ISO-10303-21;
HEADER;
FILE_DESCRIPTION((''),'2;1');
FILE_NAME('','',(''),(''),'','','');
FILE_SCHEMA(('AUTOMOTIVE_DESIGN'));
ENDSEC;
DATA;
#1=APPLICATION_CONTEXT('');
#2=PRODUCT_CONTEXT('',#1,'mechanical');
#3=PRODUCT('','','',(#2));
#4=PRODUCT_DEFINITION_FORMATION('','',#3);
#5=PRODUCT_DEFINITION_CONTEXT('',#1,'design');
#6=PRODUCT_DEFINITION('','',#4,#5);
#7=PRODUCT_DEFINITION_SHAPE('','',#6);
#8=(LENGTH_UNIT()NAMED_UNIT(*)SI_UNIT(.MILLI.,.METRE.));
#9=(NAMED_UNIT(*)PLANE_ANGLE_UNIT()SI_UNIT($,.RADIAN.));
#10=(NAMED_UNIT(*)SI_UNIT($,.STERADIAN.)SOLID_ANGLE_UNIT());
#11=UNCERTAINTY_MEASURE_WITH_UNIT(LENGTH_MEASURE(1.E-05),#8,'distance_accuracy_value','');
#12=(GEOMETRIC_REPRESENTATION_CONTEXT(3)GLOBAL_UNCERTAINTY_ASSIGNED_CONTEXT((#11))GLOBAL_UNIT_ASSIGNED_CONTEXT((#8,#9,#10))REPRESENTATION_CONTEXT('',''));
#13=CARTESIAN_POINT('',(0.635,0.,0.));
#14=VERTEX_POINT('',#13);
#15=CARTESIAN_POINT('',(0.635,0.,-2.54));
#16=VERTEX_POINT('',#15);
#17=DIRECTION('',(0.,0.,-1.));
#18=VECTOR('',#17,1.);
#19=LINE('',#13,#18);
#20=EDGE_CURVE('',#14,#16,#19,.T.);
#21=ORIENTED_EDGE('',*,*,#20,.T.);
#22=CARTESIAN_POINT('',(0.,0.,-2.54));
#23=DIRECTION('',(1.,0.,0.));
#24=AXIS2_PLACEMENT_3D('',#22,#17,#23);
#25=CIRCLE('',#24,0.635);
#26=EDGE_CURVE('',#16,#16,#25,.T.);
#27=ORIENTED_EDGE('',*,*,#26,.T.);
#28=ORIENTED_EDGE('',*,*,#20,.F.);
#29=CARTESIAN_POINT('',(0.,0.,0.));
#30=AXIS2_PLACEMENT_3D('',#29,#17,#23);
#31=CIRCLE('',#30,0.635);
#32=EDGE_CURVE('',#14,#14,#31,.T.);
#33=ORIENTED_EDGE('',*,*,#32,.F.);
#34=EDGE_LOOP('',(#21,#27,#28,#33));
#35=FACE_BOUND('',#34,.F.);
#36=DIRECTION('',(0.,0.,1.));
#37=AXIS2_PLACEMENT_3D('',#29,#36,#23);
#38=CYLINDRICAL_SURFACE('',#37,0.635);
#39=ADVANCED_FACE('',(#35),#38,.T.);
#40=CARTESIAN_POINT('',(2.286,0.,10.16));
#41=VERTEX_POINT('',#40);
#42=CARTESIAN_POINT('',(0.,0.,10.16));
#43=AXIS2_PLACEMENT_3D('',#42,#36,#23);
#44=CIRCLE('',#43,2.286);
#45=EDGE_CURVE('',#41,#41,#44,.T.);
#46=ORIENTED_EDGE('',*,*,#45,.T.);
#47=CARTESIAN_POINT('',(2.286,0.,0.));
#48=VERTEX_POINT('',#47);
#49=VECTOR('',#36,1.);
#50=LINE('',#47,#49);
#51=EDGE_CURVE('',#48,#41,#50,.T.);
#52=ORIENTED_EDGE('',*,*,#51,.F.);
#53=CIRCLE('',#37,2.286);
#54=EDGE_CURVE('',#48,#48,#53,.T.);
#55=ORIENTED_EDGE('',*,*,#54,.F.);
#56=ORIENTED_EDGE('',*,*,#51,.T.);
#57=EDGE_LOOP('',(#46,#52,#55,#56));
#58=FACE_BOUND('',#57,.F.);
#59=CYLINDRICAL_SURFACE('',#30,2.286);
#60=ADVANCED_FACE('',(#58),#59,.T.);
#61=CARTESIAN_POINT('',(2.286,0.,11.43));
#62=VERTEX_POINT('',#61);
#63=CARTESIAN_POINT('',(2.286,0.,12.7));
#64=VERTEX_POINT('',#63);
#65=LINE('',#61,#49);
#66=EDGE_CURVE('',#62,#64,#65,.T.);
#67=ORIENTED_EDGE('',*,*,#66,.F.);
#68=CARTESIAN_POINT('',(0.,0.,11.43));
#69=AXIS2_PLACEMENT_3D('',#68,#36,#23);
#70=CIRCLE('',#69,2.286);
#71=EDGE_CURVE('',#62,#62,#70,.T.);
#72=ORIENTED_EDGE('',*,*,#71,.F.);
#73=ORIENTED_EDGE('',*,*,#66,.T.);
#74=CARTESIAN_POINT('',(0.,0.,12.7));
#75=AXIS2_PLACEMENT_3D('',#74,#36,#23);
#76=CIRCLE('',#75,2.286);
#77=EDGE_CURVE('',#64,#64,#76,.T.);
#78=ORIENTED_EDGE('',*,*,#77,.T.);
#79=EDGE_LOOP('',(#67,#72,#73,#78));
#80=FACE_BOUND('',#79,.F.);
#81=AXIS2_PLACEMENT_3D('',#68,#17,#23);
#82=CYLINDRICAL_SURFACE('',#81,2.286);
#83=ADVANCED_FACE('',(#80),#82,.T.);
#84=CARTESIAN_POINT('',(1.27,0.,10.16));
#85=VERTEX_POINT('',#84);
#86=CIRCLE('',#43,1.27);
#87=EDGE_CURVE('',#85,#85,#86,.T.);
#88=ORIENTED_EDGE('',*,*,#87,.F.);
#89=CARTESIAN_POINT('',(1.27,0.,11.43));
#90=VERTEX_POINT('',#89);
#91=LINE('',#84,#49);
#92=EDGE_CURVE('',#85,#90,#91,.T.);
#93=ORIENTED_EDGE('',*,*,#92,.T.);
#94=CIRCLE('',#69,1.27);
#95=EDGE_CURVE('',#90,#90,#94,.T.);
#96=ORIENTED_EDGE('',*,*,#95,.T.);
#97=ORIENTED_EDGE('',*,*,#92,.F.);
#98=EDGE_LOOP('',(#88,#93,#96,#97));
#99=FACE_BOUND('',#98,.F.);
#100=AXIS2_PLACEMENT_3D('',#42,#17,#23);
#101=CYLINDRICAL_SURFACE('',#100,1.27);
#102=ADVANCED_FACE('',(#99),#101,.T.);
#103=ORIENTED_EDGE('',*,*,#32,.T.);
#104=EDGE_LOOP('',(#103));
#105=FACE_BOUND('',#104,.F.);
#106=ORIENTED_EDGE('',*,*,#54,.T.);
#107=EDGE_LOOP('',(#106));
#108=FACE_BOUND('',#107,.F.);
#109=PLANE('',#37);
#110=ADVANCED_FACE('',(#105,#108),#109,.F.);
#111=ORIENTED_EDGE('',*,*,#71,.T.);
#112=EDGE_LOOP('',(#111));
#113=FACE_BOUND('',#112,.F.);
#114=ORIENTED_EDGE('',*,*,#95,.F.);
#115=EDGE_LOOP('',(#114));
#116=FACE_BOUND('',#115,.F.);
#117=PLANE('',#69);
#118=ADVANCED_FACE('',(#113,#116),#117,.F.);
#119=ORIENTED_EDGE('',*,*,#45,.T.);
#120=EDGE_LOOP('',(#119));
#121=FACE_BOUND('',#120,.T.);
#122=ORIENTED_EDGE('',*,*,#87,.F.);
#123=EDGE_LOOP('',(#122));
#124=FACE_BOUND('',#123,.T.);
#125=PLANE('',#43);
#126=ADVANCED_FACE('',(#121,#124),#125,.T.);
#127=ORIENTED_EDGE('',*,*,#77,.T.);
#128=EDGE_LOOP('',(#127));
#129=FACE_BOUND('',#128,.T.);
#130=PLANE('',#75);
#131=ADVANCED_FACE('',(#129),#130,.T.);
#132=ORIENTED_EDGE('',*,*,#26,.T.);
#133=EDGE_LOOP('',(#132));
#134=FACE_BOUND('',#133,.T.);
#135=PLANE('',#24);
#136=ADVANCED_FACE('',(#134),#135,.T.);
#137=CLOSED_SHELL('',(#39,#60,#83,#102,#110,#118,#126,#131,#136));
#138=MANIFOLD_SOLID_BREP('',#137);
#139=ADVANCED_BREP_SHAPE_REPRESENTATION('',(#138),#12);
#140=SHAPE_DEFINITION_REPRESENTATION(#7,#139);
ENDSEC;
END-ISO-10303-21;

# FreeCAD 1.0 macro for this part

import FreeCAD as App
import Part
import Sketcher
from FreeCAD import Vector
Q = App.Units.Quantity

doc = App.newDocument("Part")
body = doc.addObject("PartDesign::Body", "Body")

# Sketch on XY plane
sketch1 = body.newObject("Sketcher::SketchObject", "Sketch")
sketch1.AttachmentSupport = (doc.getObject("XY_Plane"), [""])
sketch1.MapMode = "FlatFace"
sketch1.addGeometry(Part.Circle(Vector(0, 0, 0), Vector(0, 0, 1), 2.3), False)
sketch1.addConstraint([
    Sketcher.Constraint("Coincident", 0, 3, -1, 1),
    Sketcher.Constraint("Diameter", 0, Q("0.18 in")),
])
pad1 = body.newObject("PartDesign::Pad", "Pad")
pad1.Profile = sketch1
pad1.Length = Q("0.4 in")

# Sketch on XY plane
sketch2 = body.newObject("Sketcher::SketchObject", "Sketch001")
sketch2.AttachmentSupport = (doc.getObject("XY_Plane"), [""])
sketch2.MapMode = "FlatFace"
sketch2.AttachmentOffset = App.Placement(Vector(0, 0, 0.4 * 25.4), App.Rotation())
sketch2.addGeometry(Part.Circle(Vector(0, 0, 0), Vector(0, 0, 1), 1.3), False)
sketch2.addConstraint([
    Sketcher.Constraint("Coincident", 0, 3, -1, 1),
    Sketcher.Constraint("Diameter", 0, Q("0.1 in")),
])
pad2 = body.newObject("PartDesign::Pad", "Pad001")
pad2.Profile = sketch2
pad2.Length = Q("0.05 in")

# Sketch on XY plane
sketch3 = body.newObject("Sketcher::SketchObject", "Sketch002")
sketch3.AttachmentSupport = (doc.getObject("XY_Plane"), [""])
sketch3.MapMode = "FlatFace"
sketch3.AttachmentOffset = App.Placement(Vector(0, 0, 0.45 * 25.4), App.Rotation())
sketch3.addGeometry(Part.Circle(Vector(0, 0, 0), Vector(0, 0, 1), 2.3), False)
sketch3.addConstraint([
    Sketcher.Constraint("Coincident", 0, 3, -1, 1),
    Sketcher.Constraint("Diameter", 0, Q("0.18 in")),
])
pad3 = body.newObject("PartDesign::Pad", "Pad002")
pad3.Profile = sketch3
pad3.Length = Q("0.05 in")

# Sketch on XY plane
sketch4 = body.newObject("Sketcher::SketchObject", "Sketch003")
sketch4.AttachmentSupport = (doc.getObject("XY_Plane"), [""])
sketch4.MapMode = "FlatFace"
sketch4.addGeometry(Part.Circle(Vector(0, 0, 0), Vector(0, 0, 1), 0.6), False)
sketch4.addConstraint([
    Sketcher.Constraint("Coincident", 0, 3, -1, 1),
    Sketcher.Constraint("Diameter", 0, Q("0.05 in")),
])
pad4 = body.newObject("PartDesign::Pad", "Pad003")
pad4.Profile = sketch4
pad4.Length = Q("0.1 in")
pad4.Reversed = True

doc.recompute()
